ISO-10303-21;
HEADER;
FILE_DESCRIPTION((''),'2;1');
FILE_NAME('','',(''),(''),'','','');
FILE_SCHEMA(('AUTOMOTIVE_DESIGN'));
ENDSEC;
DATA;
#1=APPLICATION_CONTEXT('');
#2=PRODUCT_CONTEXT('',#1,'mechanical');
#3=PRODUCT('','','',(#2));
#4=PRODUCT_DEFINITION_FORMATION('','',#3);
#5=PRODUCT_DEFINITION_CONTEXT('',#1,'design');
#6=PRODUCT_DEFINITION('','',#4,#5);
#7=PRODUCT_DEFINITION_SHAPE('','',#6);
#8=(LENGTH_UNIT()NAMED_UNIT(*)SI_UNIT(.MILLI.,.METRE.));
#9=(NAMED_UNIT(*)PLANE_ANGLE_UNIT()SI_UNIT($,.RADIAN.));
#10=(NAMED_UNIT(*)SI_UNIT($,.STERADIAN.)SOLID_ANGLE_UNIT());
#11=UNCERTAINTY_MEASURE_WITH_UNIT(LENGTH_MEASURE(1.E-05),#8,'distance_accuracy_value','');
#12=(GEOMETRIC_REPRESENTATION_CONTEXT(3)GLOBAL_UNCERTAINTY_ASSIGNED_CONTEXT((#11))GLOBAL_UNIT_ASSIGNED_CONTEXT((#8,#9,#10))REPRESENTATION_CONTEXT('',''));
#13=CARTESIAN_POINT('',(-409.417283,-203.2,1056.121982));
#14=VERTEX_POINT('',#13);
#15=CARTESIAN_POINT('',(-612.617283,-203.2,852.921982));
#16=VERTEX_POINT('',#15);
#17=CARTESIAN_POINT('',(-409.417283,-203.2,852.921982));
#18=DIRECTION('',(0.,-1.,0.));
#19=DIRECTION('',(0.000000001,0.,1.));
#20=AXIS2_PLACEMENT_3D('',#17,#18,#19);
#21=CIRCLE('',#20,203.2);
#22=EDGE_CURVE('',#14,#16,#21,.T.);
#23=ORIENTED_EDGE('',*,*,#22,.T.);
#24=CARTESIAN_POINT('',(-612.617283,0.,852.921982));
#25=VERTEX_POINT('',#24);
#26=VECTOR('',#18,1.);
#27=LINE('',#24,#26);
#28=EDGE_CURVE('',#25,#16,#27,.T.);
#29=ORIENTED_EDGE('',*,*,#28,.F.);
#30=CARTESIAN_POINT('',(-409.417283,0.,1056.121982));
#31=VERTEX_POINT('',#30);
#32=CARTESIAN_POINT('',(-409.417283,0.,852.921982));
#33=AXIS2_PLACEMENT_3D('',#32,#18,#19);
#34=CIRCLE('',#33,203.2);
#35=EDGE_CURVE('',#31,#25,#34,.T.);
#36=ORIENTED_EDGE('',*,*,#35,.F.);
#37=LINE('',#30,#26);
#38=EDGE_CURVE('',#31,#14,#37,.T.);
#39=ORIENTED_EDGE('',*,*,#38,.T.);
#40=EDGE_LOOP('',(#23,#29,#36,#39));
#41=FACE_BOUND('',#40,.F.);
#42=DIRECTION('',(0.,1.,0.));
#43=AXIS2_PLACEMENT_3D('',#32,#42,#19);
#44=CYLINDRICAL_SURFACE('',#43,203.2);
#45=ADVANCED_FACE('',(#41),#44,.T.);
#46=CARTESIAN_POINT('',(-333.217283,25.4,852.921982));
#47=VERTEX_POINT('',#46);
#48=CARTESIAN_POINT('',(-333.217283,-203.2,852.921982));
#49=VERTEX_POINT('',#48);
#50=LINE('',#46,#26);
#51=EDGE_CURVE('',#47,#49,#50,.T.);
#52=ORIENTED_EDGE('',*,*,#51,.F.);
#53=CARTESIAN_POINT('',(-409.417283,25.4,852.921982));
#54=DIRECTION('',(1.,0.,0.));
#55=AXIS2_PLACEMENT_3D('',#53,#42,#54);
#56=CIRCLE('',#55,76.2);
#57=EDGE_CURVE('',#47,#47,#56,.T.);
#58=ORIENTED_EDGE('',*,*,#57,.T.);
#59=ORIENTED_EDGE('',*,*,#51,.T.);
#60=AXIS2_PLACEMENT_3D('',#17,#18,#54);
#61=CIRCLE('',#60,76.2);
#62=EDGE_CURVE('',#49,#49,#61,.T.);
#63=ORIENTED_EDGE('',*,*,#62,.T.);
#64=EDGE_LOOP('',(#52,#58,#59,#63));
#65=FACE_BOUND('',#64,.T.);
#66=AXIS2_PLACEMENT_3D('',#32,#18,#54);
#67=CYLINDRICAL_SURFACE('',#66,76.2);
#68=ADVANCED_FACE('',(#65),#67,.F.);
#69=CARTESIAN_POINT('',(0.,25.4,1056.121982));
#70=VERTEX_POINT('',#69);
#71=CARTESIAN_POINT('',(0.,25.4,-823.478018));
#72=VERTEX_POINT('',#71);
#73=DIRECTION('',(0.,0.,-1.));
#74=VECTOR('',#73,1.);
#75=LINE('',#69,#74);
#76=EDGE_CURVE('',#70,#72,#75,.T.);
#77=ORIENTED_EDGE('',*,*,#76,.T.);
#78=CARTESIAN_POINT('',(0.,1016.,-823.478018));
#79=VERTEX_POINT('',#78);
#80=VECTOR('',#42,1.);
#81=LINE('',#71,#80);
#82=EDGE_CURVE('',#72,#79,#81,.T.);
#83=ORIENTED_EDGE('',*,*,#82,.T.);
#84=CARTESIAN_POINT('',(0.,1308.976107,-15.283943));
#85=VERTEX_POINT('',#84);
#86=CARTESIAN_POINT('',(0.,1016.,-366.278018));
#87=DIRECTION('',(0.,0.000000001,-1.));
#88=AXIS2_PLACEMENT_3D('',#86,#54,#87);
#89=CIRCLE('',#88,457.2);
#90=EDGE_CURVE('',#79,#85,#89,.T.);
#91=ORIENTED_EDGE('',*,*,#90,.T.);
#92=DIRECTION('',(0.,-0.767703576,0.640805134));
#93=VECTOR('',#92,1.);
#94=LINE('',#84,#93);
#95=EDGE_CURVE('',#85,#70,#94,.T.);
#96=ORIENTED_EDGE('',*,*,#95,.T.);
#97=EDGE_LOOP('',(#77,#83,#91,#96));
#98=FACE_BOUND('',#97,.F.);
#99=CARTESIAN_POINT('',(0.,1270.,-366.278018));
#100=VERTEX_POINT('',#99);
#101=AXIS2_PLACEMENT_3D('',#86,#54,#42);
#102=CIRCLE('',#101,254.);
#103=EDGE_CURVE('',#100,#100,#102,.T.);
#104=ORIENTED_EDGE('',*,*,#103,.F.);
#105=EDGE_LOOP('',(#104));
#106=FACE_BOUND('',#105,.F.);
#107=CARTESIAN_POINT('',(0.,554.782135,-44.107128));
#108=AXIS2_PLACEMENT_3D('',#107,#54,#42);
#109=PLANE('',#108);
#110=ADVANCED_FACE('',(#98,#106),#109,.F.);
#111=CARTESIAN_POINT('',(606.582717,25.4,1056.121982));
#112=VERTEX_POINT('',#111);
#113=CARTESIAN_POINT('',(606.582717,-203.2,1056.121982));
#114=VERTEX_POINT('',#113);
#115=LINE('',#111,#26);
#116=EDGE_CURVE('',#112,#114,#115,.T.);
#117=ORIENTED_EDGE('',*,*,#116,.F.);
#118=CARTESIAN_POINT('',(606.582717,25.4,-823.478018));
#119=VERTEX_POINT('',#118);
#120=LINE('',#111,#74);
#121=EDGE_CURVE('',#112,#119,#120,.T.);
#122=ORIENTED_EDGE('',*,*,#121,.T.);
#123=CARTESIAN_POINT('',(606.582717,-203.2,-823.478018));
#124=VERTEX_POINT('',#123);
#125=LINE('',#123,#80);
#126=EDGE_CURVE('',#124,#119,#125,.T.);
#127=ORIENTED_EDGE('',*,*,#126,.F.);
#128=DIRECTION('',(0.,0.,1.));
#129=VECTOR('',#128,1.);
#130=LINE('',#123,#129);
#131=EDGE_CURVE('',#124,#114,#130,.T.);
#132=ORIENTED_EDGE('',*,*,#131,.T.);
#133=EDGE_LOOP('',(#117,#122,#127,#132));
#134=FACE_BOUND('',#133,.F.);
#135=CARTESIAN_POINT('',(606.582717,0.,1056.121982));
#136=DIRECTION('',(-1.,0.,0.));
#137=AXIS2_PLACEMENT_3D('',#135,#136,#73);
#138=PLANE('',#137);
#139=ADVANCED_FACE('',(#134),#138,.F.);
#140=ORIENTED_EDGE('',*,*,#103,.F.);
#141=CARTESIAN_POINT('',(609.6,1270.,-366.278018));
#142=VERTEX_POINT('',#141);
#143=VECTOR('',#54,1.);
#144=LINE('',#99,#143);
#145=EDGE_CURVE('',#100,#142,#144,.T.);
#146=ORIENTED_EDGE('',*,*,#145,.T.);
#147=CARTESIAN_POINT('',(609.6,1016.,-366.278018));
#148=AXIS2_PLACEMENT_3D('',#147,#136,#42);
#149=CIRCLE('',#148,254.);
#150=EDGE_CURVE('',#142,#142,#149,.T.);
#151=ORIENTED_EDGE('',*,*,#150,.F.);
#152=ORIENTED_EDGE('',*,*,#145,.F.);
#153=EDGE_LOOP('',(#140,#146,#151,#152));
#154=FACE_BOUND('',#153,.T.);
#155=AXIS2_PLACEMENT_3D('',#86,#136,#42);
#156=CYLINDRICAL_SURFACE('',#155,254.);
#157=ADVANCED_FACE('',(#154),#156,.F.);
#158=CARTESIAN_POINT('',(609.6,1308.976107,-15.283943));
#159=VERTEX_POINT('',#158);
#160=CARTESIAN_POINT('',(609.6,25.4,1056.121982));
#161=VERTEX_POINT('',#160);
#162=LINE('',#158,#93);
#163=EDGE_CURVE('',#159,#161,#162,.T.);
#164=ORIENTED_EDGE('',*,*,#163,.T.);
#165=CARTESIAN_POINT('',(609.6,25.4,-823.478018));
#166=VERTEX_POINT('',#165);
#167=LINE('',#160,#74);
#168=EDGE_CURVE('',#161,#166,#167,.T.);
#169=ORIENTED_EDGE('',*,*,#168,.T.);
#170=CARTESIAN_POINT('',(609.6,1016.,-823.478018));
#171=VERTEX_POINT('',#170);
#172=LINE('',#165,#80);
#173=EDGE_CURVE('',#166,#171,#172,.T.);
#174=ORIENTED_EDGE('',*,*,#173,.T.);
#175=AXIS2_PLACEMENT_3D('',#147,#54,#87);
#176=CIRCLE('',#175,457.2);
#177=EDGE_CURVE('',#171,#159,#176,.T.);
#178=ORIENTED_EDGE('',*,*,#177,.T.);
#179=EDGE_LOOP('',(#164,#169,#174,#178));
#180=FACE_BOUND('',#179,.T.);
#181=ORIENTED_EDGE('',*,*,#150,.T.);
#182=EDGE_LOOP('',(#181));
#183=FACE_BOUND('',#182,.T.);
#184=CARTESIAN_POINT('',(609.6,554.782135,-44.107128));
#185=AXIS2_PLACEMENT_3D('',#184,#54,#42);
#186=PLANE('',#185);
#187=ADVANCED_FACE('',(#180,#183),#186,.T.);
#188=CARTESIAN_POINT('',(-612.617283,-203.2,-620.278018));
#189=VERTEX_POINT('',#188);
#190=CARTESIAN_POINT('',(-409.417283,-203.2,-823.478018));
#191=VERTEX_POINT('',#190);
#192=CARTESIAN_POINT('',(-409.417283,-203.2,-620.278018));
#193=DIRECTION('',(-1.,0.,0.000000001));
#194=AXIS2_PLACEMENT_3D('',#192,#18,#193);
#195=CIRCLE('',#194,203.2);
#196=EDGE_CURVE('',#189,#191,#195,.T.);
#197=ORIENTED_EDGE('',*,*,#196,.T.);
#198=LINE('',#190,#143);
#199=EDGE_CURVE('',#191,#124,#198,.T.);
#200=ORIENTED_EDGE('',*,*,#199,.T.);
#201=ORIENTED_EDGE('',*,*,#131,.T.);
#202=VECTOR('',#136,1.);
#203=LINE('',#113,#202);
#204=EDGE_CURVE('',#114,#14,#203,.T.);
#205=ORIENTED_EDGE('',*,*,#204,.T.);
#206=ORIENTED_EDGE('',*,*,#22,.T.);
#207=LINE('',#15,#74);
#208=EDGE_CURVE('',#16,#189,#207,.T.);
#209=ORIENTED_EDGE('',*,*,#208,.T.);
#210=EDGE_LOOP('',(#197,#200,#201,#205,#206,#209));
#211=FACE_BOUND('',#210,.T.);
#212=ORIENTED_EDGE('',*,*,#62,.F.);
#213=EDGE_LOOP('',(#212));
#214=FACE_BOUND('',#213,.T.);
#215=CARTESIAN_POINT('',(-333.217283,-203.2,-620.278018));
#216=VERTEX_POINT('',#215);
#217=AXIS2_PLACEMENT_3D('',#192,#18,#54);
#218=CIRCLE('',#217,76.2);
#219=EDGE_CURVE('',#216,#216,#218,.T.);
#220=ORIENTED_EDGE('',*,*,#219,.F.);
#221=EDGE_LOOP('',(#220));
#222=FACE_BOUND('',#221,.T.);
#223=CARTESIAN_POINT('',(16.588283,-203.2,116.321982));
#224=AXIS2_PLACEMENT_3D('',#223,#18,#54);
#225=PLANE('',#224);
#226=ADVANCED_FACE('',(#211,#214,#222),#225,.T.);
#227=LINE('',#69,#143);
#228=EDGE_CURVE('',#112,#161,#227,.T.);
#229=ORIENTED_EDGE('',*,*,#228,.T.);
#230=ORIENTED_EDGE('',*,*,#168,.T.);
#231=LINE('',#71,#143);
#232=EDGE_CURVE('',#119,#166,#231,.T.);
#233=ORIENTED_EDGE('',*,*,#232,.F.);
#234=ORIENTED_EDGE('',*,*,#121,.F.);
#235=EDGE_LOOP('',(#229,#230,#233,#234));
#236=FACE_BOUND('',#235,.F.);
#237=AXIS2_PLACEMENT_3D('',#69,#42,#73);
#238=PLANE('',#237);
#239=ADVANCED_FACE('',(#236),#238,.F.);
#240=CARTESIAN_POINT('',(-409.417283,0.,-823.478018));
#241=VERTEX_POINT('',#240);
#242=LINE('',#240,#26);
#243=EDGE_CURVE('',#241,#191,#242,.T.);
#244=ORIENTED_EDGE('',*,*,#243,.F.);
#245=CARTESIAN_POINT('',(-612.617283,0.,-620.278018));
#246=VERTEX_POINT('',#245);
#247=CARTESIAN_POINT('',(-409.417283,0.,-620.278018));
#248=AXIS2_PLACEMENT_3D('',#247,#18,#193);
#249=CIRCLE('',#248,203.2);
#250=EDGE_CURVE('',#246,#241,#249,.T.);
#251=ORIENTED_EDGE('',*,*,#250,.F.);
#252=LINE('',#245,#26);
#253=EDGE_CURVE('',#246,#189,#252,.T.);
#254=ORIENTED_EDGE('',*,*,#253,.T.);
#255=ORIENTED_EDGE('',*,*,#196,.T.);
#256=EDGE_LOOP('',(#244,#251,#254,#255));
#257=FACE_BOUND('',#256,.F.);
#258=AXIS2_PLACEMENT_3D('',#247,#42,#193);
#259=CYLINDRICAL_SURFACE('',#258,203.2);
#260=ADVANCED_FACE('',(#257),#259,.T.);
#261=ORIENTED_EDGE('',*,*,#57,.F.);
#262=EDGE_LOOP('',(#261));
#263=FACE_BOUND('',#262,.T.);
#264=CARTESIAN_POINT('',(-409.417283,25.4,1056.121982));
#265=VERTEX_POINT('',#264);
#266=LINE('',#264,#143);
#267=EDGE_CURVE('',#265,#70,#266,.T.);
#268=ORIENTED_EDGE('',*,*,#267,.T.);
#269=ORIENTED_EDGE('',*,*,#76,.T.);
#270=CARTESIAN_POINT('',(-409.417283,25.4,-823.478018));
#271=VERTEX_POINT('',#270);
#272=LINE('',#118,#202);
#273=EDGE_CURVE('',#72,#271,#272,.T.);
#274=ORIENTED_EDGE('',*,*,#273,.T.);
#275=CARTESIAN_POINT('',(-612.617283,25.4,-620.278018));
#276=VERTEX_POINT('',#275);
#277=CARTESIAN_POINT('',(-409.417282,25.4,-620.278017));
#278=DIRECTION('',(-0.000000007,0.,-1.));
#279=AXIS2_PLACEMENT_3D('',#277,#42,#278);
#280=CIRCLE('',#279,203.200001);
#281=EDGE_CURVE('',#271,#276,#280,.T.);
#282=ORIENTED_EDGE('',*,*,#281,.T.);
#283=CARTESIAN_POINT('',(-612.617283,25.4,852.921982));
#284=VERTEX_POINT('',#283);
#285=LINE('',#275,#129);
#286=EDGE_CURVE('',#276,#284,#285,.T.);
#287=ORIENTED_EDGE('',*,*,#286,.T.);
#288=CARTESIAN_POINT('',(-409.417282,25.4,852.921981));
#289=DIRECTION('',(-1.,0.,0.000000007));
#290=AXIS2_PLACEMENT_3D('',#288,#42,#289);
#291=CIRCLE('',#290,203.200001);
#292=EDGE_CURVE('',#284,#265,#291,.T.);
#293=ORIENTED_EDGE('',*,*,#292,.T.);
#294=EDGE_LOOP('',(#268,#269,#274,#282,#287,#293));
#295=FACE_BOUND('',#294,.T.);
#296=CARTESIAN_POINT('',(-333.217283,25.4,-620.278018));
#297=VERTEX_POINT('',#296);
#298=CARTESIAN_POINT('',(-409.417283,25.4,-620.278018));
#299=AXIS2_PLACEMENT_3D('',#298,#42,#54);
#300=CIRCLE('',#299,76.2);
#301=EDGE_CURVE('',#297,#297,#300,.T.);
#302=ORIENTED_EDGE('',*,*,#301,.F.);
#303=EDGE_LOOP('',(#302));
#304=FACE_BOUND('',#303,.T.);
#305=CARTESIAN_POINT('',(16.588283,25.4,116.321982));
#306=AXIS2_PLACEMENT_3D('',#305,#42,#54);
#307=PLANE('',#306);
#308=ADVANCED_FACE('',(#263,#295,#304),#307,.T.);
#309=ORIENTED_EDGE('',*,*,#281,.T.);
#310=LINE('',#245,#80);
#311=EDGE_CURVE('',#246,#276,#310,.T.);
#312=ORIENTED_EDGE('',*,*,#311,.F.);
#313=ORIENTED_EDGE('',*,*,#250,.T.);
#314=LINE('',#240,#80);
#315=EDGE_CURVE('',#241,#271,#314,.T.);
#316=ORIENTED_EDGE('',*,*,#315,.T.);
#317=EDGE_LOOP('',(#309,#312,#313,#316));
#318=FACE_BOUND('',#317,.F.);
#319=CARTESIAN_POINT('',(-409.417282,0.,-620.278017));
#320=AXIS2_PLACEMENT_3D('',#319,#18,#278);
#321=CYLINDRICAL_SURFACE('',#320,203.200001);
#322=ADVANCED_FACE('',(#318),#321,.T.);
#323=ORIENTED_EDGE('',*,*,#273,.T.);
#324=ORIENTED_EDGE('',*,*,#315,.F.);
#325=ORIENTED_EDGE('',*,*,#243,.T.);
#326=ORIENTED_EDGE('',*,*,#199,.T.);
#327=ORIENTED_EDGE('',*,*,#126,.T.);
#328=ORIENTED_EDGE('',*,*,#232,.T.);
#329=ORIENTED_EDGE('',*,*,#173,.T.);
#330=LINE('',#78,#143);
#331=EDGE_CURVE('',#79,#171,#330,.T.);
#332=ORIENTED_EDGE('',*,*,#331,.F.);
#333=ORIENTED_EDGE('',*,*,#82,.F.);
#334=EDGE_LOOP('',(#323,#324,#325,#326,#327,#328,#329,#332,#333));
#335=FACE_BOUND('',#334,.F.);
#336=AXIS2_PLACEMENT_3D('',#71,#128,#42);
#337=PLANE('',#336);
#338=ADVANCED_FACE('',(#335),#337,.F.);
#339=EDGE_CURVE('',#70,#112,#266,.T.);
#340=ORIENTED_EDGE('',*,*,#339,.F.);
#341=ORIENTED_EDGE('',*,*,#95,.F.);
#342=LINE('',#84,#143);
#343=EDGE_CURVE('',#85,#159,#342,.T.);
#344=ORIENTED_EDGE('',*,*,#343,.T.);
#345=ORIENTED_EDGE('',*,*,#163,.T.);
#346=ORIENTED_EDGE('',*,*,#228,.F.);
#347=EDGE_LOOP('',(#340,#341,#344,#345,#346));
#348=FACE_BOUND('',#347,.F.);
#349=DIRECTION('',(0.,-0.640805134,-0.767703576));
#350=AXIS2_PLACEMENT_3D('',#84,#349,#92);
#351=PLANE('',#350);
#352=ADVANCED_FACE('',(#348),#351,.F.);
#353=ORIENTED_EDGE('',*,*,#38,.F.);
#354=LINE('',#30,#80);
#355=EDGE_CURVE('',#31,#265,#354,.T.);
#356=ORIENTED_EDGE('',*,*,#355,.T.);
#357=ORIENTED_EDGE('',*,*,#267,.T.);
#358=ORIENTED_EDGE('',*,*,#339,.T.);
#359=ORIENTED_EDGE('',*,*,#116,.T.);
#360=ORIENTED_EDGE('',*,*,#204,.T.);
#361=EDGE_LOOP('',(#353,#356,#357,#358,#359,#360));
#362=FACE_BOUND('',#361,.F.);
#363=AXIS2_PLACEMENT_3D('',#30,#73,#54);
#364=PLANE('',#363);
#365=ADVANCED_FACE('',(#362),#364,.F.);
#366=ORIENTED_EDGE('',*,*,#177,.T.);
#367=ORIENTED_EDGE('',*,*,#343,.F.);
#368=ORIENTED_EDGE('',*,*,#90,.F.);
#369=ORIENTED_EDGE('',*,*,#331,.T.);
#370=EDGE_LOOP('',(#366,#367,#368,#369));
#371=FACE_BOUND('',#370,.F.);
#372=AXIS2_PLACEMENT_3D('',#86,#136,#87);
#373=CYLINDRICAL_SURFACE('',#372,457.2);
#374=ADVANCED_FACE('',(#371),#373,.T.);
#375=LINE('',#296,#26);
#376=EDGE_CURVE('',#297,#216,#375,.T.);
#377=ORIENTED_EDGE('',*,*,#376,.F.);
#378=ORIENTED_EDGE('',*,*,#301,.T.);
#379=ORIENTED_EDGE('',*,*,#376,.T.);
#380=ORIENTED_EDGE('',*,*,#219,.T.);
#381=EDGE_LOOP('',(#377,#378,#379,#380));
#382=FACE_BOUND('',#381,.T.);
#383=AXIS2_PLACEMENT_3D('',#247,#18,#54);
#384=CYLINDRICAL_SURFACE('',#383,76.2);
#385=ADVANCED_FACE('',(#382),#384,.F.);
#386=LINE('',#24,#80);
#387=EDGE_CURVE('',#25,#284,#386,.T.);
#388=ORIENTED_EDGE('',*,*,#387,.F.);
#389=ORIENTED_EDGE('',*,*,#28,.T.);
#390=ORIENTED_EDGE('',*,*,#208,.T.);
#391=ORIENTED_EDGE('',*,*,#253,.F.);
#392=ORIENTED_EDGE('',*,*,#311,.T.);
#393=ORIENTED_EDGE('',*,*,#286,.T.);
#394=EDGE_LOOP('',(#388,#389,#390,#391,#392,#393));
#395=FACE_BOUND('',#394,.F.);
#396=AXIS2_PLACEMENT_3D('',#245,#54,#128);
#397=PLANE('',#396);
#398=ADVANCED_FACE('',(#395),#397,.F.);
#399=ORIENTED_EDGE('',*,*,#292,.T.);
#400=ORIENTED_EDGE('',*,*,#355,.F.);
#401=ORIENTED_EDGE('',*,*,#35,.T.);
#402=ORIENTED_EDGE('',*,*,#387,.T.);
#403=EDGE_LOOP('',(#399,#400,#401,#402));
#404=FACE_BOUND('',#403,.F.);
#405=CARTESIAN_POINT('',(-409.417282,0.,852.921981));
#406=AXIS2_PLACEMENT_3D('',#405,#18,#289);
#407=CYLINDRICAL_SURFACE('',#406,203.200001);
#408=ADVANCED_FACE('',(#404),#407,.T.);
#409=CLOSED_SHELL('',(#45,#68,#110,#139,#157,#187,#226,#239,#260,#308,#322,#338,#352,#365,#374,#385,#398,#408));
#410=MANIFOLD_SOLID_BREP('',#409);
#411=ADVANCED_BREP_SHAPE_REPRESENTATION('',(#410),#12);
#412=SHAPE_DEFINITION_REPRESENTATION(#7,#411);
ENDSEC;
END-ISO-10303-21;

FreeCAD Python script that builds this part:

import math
import FreeCAD as App
import Part
import Sketcher
from FreeCAD import Vector
Q = App.Units.Quantity

doc = App.newDocument("Part")
body = doc.addObject("PartDesign::Body", "Body")

# Sketch on XZ plane
sketch1 = body.newObject("Sketcher::SketchObject", "Sketch")
sketch1.AttachmentSupport = (doc.getObject("XZ_Plane"), [""])
sketch1.MapMode = "FlatFace"
sketch1.addGeometry([
    Part.LineSegment(Vector(607, -823, 0), Vector(607, 1056, 0)),  # 0
    Part.LineSegment(Vector(607, 1056, 0), Vector(-409, 1056, 0)),  # 1
    Part.ArcOfCircle(Part.Circle(Vector(-409, 853, 0), Vector(0, 0, 1), 203), math.radians(90), math.radians(180)),  # 2
    Part.LineSegment(Vector(-613, 853, 0), Vector(-613, -620, 0)),  # 3
    Part.ArcOfCircle(Part.Circle(Vector(-409, -620, 0), Vector(0, 0, 1), 203), math.radians(180), math.radians(270)),  # 4
    Part.LineSegment(Vector(-409, -823, 0), Vector(607, -823, 0)),  # 5
    Part.Circle(Vector(-409, -620, 0), Vector(0, 0, 1), 76),  # 6
    Part.Circle(Vector(-409, 853, 0), Vector(0, 0, 1), 76),  # 7
], False)
sketch1.addConstraint([
    Sketcher.Constraint("Coincident", 0, 2, 1, 1),
    Sketcher.Constraint("Tangent", 1, 2, 2, 1),
    Sketcher.Constraint("Tangent", 2, 2, 3, 1),
    Sketcher.Constraint("Tangent", 3, 2, 4, 1),
    Sketcher.Constraint("Tangent", 4, 2, 5, 1),
    Sketcher.Constraint("Coincident", 5, 2, 0, 1),
    Sketcher.Constraint("Vertical", 0),
    Sketcher.Constraint("Horizontal", 1),
    Sketcher.Constraint("Vertical", 3),
    Sketcher.Constraint("Horizontal", 5),
    Sketcher.Constraint("Coincident", 6, 3, 4, 3),
    Sketcher.Constraint("Coincident", 7, 3, 2, 3),
    Sketcher.Constraint("Equal", 2, 4),
    Sketcher.Constraint("Equal", 6, 7),
    Sketcher.Constraint("Diameter", 6, Q("6 in")),
    Sketcher.Constraint("Radius", 2, Q("8 in")),
    Sketcher.Constraint("DistanceX", 1, 2, 1, 1, Q("40 in")),
    Sketcher.Constraint("DistanceY", 0, 1, 0, 2, Q("74 in")),
    Sketcher.Constraint("DistanceY", 4, 3, -1, 1, Q("620.278018 mm")),
    Sketcher.Constraint("DistanceX", 2, 3, -1, 1, Q("409.417283 mm")),
])
pad1 = body.newObject("PartDesign::Pad", "Pad")
pad1.Profile = sketch1
pad1.Length = Q("8 in")

# Sketch on XZ plane
sketch2 = body.newObject("Sketcher::SketchObject", "Sketch001")
sketch2.AttachmentSupport = (doc.getObject("XZ_Plane"), [""])
sketch2.MapMode = "FlatFace"
sketch2.addGeometry([
    Part.LineSegment(Vector(607, 1056, 0), Vector(607, -823, 0)),  # 0
    Part.LineSegment(Vector(607, -823, 0), Vector(-409, -823, 0)),  # 1
    Part.ArcOfCircle(Part.Circle(Vector(-409, -620, 0), Vector(0, 0, 1), 203), math.radians(-180), math.radians(-90)),  # 2
    Part.LineSegment(Vector(-613, -620, 0), Vector(-613, 853, 0)),  # 3
    Part.ArcOfCircle(Part.Circle(Vector(-409, 853, 0), Vector(0, 0, 1), 203), math.radians(90), math.radians(180)),  # 4
    Part.LineSegment(Vector(-409, 1056, 0), Vector(607, 1056, 0)),  # 5
    Part.Circle(Vector(-409, 853, 0), Vector(0, 0, 1), 76),  # 6
    Part.Circle(Vector(-409, -620, 0), Vector(0, 0, 1), 76),  # 7
], False)
sketch2.addConstraint([
    Sketcher.Constraint("Coincident", 0, 2, 1, 1),
    Sketcher.Constraint("Tangent", 1, 2, 2, 2),
    Sketcher.Constraint("Tangent", 2, 1, 3, 1),
    Sketcher.Constraint("Tangent", 3, 2, 4, 2),
    Sketcher.Constraint("Tangent", 4, 1, 5, 1),
    Sketcher.Constraint("Coincident", 5, 2, 0, 1),
    Sketcher.Constraint("Vertical", 0),
    Sketcher.Constraint("Horizontal", 1),
    Sketcher.Constraint("Vertical", 3),
    Sketcher.Constraint("Horizontal", 5),
    Sketcher.Constraint("Coincident", 6, 3, 4, 3),
    Sketcher.Constraint("Coincident", 7, 3, 2, 3),
    Sketcher.Constraint("Equal", 2, 4),
    Sketcher.Constraint("Equal", 6, 7),
    Sketcher.Constraint("Diameter", 6, Q("6 in")),
    Sketcher.Constraint("Radius", 2, Q("8.0000001 in")),
    Sketcher.Constraint("DistanceX", 1, 2, 1, 1, Q("40 in")),
    Sketcher.Constraint("DistanceY", 0, 2, 0, 1, Q("74 in")),
    Sketcher.Constraint("DistanceX", 2, 3, -1, 1, Q("409.417282 mm")),
    Sketcher.Constraint("DistanceY", -1, 1, 4, 3, Q("852.921981 mm")),
])
pad2 = body.newObject("PartDesign::Pad", "Pad001")
pad2.Profile = sketch2
pad2.Length = Q("1 in")
pad2.Reversed = True

# Sketch on YZ plane
sketch3 = body.newObject("Sketcher::SketchObject", "Sketch002")
sketch3.AttachmentSupport = (doc.getObject("YZ_Plane"), [""])
sketch3.MapMode = "FlatFace"
sketch3.addGeometry([
    Part.LineSegment(Vector(25, -823, 0), Vector(1016, -823, 0)),
    Part.ArcOfCircle(Part.Circle(Vector(1016, -366, 0), Vector(0, 0, 1), 457), math.radians(-90), math.radians(50)),
    Part.LineSegment(Vector(1309, -15, 0), Vector(25, 1056, 0)),
    Part.LineSegment(Vector(25, 1056, 0), Vector(25, -823, 0)),
], False)
sketch3.addConstraint([
    Sketcher.Constraint("Tangent", 0, 2, 1, 1),
    Sketcher.Constraint("Tangent", 1, 2, 2, 1),
    Sketcher.Constraint("Coincident", 2, 2, 3, 1),
    Sketcher.Constraint("Coincident", 3, 2, 0, 1),
    Sketcher.Constraint("Horizontal", 0),
    Sketcher.Constraint("Vertical", 3),
    Sketcher.Constraint("Radius", 1, Q("18 in")),
    Sketcher.Constraint("DistanceX", 0, 1, 0, 2, Q("39 in")),
    Sketcher.Constraint("DistanceY", 3, 2, 3, 1, Q("74 in")),
    Sketcher.Constraint("DistanceX", -1, 1, 1, 3, Q("40 in")),
    Sketcher.Constraint("DistanceY", 0, 2, -1, 1, Q("823.478018 mm")),
])
pad3 = body.newObject("PartDesign::Pad", "Pad002")
pad3.Profile = sketch3
pad3.Length = Q("24 in")

# Sketch on YZ plane
sketch4 = body.newObject("Sketcher::SketchObject", "Sketch003")
sketch4.AttachmentSupport = (doc.getObject("YZ_Plane"), [""])
sketch4.MapMode = "FlatFace"
sketch4.addGeometry(Part.Circle(Vector(1016, -366, 0), Vector(0, 0, 1), 254), False)
sketch4.addConstraint([
    Sketcher.Constraint("Diameter", 0, Q("20 in")),
    Sketcher.Constraint("DistanceX", -1, 1, 0, 3, Q("40 in")),
    Sketcher.Constraint("DistanceY", 0, 3, -1, 1, Q("366.278018 mm")),
])
pocket1 = body.newObject("PartDesign::Pocket", "Pocket")
pocket1.Profile = sketch4
pocket1.Length = Q("58.6 in")
pocket1.Reversed = True

doc.recompute()
